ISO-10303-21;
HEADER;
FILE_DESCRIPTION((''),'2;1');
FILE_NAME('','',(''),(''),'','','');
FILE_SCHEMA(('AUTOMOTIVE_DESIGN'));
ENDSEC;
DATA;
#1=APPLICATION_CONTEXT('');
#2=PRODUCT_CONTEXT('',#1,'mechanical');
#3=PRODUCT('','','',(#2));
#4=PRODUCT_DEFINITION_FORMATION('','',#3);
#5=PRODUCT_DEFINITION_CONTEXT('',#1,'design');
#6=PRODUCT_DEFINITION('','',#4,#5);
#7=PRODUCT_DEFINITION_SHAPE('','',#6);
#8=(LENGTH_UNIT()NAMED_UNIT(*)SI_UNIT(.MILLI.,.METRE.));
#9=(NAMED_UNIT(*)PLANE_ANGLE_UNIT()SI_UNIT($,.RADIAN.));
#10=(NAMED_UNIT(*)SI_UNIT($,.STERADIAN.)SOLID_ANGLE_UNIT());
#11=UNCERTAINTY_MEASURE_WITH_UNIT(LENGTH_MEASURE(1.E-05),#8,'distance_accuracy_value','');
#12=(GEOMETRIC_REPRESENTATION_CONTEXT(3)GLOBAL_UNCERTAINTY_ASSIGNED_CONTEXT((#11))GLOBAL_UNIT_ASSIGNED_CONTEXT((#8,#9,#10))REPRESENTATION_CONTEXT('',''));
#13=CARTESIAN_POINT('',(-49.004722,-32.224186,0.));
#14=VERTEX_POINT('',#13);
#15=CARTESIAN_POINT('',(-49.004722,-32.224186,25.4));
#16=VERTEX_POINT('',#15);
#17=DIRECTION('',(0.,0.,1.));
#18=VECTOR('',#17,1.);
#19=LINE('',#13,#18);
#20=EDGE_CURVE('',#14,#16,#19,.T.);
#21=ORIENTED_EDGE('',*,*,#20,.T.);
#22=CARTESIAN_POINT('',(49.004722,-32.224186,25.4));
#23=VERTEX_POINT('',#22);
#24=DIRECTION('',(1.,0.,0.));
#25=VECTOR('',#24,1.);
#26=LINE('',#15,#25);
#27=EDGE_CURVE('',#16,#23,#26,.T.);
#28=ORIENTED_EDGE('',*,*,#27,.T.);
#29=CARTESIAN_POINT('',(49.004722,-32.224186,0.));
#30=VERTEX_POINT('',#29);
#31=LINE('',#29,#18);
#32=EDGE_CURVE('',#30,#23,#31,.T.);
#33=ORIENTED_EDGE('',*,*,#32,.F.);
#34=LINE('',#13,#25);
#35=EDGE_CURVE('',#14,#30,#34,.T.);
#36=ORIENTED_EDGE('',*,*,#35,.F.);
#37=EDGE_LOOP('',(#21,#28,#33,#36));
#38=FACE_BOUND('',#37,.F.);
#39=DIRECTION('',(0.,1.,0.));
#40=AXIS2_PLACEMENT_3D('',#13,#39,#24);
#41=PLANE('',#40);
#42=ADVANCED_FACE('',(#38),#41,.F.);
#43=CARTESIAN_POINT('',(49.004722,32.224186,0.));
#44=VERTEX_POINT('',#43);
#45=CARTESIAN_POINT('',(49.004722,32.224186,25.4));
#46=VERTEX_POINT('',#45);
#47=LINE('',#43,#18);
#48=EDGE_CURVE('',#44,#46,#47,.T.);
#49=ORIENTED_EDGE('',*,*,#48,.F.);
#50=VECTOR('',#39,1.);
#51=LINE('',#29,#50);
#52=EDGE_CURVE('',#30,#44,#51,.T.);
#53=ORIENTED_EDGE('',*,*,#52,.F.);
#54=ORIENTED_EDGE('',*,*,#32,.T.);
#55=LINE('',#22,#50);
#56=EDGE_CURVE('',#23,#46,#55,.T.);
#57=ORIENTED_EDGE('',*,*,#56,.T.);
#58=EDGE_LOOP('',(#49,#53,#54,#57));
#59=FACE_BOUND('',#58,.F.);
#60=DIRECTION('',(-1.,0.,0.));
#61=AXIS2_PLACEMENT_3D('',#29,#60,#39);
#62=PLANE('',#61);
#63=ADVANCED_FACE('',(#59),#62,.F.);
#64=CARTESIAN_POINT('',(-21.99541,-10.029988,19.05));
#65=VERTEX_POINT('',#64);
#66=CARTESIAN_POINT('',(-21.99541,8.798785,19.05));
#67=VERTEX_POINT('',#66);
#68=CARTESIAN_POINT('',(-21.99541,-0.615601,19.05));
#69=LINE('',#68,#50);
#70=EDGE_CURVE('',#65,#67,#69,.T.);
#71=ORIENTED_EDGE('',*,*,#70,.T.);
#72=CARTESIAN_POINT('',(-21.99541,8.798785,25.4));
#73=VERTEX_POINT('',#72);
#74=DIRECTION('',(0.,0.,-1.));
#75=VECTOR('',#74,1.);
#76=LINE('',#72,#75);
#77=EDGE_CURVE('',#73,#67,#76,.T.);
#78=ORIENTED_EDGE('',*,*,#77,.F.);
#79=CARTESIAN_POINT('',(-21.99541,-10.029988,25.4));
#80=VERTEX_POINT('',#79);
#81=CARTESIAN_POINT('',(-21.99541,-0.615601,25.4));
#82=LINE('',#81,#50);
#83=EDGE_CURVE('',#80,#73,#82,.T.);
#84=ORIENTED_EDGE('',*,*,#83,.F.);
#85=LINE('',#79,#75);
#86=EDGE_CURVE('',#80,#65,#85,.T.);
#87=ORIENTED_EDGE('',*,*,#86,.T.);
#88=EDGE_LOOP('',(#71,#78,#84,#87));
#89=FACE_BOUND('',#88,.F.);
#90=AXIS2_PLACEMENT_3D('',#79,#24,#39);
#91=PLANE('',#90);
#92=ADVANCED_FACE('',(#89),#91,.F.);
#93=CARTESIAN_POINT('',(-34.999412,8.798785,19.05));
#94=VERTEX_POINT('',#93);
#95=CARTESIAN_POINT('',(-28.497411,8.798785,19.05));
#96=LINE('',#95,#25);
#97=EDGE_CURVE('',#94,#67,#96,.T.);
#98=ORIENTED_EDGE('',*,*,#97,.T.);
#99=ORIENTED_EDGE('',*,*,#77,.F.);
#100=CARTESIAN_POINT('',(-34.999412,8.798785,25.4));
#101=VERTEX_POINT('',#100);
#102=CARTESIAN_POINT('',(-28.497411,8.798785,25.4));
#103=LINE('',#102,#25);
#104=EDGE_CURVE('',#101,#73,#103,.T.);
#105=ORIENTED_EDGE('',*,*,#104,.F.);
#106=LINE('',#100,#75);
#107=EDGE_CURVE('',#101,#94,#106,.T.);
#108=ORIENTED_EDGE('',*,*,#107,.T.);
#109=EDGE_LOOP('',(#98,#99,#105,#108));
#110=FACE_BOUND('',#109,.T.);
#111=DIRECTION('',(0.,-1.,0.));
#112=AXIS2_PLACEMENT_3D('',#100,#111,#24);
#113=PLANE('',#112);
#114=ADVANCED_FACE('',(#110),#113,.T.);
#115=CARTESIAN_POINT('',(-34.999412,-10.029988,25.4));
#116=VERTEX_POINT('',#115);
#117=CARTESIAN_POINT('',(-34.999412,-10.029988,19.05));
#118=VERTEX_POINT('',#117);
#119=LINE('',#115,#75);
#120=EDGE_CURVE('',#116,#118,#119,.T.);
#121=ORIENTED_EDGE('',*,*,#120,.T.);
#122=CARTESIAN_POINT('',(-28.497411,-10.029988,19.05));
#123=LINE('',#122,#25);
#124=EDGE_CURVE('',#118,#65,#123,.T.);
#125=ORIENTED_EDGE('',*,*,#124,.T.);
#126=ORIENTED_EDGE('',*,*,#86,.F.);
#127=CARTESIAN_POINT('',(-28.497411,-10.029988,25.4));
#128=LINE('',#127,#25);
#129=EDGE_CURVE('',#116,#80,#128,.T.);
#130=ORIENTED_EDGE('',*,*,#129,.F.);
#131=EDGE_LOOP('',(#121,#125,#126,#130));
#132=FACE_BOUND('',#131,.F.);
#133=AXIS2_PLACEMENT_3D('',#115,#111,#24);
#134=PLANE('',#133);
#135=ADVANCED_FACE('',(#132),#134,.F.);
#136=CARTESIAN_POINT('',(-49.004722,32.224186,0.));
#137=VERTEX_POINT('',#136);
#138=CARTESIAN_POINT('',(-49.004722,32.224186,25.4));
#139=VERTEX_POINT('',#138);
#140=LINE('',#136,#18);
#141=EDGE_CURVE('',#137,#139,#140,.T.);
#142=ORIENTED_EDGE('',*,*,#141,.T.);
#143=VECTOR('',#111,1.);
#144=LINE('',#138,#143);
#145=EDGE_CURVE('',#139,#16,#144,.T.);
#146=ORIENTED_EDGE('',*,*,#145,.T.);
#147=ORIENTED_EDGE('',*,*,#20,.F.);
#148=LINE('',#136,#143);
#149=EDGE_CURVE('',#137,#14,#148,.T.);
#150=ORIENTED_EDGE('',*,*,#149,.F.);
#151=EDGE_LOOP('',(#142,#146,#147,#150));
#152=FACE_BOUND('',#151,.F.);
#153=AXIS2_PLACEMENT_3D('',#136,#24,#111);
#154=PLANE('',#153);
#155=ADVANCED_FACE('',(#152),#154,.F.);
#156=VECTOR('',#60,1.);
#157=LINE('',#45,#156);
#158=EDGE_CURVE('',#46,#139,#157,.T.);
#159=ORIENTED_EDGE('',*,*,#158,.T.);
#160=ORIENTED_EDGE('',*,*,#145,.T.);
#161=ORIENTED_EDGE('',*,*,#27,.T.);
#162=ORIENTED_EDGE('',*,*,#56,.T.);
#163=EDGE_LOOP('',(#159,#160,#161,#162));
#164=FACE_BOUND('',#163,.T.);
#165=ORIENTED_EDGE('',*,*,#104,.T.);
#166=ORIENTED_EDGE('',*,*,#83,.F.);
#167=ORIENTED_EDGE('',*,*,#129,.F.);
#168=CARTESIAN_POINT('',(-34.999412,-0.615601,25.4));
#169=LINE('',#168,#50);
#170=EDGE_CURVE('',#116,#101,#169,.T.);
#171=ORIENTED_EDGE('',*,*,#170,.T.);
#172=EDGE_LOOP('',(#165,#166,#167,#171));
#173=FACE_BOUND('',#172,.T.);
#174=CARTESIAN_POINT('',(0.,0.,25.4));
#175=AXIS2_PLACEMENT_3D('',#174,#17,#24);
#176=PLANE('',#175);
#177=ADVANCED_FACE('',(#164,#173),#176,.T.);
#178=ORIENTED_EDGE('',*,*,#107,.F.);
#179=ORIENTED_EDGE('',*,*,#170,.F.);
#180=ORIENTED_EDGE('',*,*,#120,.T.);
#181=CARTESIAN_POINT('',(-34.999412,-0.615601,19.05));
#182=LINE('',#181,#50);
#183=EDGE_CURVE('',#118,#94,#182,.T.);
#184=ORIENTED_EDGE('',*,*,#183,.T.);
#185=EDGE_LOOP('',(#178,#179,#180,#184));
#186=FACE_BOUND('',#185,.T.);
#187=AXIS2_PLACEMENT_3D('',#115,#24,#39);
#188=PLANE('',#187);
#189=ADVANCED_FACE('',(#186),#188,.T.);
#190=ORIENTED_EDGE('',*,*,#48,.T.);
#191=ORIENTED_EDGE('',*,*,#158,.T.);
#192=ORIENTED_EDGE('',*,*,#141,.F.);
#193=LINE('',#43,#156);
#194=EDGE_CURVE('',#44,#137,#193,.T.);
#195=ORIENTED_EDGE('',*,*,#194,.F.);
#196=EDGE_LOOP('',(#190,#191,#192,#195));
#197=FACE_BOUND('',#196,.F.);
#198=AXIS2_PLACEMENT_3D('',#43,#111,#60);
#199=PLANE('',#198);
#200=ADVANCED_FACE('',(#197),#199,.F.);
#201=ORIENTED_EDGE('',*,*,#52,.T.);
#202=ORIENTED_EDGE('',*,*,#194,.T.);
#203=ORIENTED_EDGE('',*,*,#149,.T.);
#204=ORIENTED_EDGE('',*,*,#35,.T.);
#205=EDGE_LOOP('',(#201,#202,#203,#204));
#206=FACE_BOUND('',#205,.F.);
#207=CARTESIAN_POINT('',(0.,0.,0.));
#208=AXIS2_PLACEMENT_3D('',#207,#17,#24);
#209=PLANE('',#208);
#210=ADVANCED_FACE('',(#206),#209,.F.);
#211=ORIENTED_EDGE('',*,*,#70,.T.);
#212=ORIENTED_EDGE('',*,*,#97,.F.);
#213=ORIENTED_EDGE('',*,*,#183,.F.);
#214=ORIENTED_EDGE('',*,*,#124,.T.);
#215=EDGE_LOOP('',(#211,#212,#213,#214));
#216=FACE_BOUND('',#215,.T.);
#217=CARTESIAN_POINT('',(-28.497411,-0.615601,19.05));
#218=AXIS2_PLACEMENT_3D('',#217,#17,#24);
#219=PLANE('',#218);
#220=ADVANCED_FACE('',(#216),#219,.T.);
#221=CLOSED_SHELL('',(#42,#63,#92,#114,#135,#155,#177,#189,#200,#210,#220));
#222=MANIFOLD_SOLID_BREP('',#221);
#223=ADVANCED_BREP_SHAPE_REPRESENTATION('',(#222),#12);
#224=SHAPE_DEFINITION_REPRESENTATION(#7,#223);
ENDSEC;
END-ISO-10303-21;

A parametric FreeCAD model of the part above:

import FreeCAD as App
import Part
import Sketcher
from FreeCAD import Vector
Q = App.Units.Quantity

doc = App.newDocument("Part")
body = doc.addObject("PartDesign::Body", "Body")

# Sketch on XY plane
sketch1 = body.newObject("Sketcher::SketchObject", "Sketch")
sketch1.AttachmentSupport = (doc.getObject("XY_Plane"), [""])
sketch1.MapMode = "FlatFace"
sketch1.addGeometry([
    Part.LineSegment(Vector(-49, 32, 0), Vector(-49, -32, 0)),
    Part.LineSegment(Vector(-49, -32, 0), Vector(49, -32, 0)),
    Part.LineSegment(Vector(49, -32, 0), Vector(49, 32, 0)),
    Part.LineSegment(Vector(49, 32, 0), Vector(-49, 32, 0)),
], False)
sketch1.addConstraint([
    Sketcher.Constraint("Coincident", 0, 2, 1, 1),
    Sketcher.Constraint("Coincident", 1, 2, 2, 1),
    Sketcher.Constraint("Coincident", 2, 2, 3, 1),
    Sketcher.Constraint("Coincident", 3, 2, 0, 1),
    Sketcher.Constraint("Vertical", 0),
    Sketcher.Constraint("Horizontal", 1),
    Sketcher.Constraint("Vertical", 2),
    Sketcher.Constraint("Horizontal", 3),
    Sketcher.Constraint("Symmetric", 0, 2, 2, 2, -1, 1),
    Sketcher.Constraint("DistanceX", 1, 1, 1, 2, Q("98.009444 mm")),
    Sketcher.Constraint("DistanceY", 0, 2, 0, 1, Q("64.448372 mm")),
])
pad1 = body.newObject("PartDesign::Pad", "Pad")
pad1.Profile = sketch1
pad1.Length = Q("1 in")

# Sketch on XY plane
sketch2 = body.newObject("Sketcher::SketchObject", "Sketch001")
sketch2.AttachmentSupport = (doc.getObject("XY_Plane"), [""])
sketch2.MapMode = "FlatFace"
sketch2.AttachmentOffset = App.Placement(Vector(0, 0, 1 * 25.4), App.Rotation())
sketch2.addGeometry([
    Part.LineSegment(Vector(-35, 9, 0), Vector(-35, -10, 0)),
    Part.LineSegment(Vector(-35, -10, 0), Vector(-22, -10, 0)),
    Part.LineSegment(Vector(-22, -10, 0), Vector(-22, 9, 0)),
    Part.LineSegment(Vector(-22, 9, 0), Vector(-35, 9, 0)),
], False)
sketch2.addConstraint([
    Sketcher.Constraint("Coincident", 0, 2, 1, 1),
    Sketcher.Constraint("Coincident", 1, 2, 2, 1),
    Sketcher.Constraint("Coincident", 2, 2, 3, 1),
    Sketcher.Constraint("Coincident", 3, 2, 0, 1),
    Sketcher.Constraint("Vertical", 0),
    Sketcher.Constraint("Horizontal", 1),
    Sketcher.Constraint("Vertical", 2),
    Sketcher.Constraint("Horizontal", 3),
    Sketcher.Constraint("DistanceX", 1, 1, 1, 2, Q("13.004002 mm")),
    Sketcher.Constraint("DistanceY", 0, 2, 0, 1, Q("18.828773 mm")),
    Sketcher.Constraint("DistanceX", 1, 2, -1, 1, Q("21.99541 mm")),
    Sketcher.Constraint("DistanceY", 0, 2, -1, 1, Q("10.029988 mm")),
])
pocket1 = body.newObject("PartDesign::Pocket", "Pocket")
pocket1.Profile = sketch2
pocket1.Length = Q("0.25 in")

doc.recompute()
